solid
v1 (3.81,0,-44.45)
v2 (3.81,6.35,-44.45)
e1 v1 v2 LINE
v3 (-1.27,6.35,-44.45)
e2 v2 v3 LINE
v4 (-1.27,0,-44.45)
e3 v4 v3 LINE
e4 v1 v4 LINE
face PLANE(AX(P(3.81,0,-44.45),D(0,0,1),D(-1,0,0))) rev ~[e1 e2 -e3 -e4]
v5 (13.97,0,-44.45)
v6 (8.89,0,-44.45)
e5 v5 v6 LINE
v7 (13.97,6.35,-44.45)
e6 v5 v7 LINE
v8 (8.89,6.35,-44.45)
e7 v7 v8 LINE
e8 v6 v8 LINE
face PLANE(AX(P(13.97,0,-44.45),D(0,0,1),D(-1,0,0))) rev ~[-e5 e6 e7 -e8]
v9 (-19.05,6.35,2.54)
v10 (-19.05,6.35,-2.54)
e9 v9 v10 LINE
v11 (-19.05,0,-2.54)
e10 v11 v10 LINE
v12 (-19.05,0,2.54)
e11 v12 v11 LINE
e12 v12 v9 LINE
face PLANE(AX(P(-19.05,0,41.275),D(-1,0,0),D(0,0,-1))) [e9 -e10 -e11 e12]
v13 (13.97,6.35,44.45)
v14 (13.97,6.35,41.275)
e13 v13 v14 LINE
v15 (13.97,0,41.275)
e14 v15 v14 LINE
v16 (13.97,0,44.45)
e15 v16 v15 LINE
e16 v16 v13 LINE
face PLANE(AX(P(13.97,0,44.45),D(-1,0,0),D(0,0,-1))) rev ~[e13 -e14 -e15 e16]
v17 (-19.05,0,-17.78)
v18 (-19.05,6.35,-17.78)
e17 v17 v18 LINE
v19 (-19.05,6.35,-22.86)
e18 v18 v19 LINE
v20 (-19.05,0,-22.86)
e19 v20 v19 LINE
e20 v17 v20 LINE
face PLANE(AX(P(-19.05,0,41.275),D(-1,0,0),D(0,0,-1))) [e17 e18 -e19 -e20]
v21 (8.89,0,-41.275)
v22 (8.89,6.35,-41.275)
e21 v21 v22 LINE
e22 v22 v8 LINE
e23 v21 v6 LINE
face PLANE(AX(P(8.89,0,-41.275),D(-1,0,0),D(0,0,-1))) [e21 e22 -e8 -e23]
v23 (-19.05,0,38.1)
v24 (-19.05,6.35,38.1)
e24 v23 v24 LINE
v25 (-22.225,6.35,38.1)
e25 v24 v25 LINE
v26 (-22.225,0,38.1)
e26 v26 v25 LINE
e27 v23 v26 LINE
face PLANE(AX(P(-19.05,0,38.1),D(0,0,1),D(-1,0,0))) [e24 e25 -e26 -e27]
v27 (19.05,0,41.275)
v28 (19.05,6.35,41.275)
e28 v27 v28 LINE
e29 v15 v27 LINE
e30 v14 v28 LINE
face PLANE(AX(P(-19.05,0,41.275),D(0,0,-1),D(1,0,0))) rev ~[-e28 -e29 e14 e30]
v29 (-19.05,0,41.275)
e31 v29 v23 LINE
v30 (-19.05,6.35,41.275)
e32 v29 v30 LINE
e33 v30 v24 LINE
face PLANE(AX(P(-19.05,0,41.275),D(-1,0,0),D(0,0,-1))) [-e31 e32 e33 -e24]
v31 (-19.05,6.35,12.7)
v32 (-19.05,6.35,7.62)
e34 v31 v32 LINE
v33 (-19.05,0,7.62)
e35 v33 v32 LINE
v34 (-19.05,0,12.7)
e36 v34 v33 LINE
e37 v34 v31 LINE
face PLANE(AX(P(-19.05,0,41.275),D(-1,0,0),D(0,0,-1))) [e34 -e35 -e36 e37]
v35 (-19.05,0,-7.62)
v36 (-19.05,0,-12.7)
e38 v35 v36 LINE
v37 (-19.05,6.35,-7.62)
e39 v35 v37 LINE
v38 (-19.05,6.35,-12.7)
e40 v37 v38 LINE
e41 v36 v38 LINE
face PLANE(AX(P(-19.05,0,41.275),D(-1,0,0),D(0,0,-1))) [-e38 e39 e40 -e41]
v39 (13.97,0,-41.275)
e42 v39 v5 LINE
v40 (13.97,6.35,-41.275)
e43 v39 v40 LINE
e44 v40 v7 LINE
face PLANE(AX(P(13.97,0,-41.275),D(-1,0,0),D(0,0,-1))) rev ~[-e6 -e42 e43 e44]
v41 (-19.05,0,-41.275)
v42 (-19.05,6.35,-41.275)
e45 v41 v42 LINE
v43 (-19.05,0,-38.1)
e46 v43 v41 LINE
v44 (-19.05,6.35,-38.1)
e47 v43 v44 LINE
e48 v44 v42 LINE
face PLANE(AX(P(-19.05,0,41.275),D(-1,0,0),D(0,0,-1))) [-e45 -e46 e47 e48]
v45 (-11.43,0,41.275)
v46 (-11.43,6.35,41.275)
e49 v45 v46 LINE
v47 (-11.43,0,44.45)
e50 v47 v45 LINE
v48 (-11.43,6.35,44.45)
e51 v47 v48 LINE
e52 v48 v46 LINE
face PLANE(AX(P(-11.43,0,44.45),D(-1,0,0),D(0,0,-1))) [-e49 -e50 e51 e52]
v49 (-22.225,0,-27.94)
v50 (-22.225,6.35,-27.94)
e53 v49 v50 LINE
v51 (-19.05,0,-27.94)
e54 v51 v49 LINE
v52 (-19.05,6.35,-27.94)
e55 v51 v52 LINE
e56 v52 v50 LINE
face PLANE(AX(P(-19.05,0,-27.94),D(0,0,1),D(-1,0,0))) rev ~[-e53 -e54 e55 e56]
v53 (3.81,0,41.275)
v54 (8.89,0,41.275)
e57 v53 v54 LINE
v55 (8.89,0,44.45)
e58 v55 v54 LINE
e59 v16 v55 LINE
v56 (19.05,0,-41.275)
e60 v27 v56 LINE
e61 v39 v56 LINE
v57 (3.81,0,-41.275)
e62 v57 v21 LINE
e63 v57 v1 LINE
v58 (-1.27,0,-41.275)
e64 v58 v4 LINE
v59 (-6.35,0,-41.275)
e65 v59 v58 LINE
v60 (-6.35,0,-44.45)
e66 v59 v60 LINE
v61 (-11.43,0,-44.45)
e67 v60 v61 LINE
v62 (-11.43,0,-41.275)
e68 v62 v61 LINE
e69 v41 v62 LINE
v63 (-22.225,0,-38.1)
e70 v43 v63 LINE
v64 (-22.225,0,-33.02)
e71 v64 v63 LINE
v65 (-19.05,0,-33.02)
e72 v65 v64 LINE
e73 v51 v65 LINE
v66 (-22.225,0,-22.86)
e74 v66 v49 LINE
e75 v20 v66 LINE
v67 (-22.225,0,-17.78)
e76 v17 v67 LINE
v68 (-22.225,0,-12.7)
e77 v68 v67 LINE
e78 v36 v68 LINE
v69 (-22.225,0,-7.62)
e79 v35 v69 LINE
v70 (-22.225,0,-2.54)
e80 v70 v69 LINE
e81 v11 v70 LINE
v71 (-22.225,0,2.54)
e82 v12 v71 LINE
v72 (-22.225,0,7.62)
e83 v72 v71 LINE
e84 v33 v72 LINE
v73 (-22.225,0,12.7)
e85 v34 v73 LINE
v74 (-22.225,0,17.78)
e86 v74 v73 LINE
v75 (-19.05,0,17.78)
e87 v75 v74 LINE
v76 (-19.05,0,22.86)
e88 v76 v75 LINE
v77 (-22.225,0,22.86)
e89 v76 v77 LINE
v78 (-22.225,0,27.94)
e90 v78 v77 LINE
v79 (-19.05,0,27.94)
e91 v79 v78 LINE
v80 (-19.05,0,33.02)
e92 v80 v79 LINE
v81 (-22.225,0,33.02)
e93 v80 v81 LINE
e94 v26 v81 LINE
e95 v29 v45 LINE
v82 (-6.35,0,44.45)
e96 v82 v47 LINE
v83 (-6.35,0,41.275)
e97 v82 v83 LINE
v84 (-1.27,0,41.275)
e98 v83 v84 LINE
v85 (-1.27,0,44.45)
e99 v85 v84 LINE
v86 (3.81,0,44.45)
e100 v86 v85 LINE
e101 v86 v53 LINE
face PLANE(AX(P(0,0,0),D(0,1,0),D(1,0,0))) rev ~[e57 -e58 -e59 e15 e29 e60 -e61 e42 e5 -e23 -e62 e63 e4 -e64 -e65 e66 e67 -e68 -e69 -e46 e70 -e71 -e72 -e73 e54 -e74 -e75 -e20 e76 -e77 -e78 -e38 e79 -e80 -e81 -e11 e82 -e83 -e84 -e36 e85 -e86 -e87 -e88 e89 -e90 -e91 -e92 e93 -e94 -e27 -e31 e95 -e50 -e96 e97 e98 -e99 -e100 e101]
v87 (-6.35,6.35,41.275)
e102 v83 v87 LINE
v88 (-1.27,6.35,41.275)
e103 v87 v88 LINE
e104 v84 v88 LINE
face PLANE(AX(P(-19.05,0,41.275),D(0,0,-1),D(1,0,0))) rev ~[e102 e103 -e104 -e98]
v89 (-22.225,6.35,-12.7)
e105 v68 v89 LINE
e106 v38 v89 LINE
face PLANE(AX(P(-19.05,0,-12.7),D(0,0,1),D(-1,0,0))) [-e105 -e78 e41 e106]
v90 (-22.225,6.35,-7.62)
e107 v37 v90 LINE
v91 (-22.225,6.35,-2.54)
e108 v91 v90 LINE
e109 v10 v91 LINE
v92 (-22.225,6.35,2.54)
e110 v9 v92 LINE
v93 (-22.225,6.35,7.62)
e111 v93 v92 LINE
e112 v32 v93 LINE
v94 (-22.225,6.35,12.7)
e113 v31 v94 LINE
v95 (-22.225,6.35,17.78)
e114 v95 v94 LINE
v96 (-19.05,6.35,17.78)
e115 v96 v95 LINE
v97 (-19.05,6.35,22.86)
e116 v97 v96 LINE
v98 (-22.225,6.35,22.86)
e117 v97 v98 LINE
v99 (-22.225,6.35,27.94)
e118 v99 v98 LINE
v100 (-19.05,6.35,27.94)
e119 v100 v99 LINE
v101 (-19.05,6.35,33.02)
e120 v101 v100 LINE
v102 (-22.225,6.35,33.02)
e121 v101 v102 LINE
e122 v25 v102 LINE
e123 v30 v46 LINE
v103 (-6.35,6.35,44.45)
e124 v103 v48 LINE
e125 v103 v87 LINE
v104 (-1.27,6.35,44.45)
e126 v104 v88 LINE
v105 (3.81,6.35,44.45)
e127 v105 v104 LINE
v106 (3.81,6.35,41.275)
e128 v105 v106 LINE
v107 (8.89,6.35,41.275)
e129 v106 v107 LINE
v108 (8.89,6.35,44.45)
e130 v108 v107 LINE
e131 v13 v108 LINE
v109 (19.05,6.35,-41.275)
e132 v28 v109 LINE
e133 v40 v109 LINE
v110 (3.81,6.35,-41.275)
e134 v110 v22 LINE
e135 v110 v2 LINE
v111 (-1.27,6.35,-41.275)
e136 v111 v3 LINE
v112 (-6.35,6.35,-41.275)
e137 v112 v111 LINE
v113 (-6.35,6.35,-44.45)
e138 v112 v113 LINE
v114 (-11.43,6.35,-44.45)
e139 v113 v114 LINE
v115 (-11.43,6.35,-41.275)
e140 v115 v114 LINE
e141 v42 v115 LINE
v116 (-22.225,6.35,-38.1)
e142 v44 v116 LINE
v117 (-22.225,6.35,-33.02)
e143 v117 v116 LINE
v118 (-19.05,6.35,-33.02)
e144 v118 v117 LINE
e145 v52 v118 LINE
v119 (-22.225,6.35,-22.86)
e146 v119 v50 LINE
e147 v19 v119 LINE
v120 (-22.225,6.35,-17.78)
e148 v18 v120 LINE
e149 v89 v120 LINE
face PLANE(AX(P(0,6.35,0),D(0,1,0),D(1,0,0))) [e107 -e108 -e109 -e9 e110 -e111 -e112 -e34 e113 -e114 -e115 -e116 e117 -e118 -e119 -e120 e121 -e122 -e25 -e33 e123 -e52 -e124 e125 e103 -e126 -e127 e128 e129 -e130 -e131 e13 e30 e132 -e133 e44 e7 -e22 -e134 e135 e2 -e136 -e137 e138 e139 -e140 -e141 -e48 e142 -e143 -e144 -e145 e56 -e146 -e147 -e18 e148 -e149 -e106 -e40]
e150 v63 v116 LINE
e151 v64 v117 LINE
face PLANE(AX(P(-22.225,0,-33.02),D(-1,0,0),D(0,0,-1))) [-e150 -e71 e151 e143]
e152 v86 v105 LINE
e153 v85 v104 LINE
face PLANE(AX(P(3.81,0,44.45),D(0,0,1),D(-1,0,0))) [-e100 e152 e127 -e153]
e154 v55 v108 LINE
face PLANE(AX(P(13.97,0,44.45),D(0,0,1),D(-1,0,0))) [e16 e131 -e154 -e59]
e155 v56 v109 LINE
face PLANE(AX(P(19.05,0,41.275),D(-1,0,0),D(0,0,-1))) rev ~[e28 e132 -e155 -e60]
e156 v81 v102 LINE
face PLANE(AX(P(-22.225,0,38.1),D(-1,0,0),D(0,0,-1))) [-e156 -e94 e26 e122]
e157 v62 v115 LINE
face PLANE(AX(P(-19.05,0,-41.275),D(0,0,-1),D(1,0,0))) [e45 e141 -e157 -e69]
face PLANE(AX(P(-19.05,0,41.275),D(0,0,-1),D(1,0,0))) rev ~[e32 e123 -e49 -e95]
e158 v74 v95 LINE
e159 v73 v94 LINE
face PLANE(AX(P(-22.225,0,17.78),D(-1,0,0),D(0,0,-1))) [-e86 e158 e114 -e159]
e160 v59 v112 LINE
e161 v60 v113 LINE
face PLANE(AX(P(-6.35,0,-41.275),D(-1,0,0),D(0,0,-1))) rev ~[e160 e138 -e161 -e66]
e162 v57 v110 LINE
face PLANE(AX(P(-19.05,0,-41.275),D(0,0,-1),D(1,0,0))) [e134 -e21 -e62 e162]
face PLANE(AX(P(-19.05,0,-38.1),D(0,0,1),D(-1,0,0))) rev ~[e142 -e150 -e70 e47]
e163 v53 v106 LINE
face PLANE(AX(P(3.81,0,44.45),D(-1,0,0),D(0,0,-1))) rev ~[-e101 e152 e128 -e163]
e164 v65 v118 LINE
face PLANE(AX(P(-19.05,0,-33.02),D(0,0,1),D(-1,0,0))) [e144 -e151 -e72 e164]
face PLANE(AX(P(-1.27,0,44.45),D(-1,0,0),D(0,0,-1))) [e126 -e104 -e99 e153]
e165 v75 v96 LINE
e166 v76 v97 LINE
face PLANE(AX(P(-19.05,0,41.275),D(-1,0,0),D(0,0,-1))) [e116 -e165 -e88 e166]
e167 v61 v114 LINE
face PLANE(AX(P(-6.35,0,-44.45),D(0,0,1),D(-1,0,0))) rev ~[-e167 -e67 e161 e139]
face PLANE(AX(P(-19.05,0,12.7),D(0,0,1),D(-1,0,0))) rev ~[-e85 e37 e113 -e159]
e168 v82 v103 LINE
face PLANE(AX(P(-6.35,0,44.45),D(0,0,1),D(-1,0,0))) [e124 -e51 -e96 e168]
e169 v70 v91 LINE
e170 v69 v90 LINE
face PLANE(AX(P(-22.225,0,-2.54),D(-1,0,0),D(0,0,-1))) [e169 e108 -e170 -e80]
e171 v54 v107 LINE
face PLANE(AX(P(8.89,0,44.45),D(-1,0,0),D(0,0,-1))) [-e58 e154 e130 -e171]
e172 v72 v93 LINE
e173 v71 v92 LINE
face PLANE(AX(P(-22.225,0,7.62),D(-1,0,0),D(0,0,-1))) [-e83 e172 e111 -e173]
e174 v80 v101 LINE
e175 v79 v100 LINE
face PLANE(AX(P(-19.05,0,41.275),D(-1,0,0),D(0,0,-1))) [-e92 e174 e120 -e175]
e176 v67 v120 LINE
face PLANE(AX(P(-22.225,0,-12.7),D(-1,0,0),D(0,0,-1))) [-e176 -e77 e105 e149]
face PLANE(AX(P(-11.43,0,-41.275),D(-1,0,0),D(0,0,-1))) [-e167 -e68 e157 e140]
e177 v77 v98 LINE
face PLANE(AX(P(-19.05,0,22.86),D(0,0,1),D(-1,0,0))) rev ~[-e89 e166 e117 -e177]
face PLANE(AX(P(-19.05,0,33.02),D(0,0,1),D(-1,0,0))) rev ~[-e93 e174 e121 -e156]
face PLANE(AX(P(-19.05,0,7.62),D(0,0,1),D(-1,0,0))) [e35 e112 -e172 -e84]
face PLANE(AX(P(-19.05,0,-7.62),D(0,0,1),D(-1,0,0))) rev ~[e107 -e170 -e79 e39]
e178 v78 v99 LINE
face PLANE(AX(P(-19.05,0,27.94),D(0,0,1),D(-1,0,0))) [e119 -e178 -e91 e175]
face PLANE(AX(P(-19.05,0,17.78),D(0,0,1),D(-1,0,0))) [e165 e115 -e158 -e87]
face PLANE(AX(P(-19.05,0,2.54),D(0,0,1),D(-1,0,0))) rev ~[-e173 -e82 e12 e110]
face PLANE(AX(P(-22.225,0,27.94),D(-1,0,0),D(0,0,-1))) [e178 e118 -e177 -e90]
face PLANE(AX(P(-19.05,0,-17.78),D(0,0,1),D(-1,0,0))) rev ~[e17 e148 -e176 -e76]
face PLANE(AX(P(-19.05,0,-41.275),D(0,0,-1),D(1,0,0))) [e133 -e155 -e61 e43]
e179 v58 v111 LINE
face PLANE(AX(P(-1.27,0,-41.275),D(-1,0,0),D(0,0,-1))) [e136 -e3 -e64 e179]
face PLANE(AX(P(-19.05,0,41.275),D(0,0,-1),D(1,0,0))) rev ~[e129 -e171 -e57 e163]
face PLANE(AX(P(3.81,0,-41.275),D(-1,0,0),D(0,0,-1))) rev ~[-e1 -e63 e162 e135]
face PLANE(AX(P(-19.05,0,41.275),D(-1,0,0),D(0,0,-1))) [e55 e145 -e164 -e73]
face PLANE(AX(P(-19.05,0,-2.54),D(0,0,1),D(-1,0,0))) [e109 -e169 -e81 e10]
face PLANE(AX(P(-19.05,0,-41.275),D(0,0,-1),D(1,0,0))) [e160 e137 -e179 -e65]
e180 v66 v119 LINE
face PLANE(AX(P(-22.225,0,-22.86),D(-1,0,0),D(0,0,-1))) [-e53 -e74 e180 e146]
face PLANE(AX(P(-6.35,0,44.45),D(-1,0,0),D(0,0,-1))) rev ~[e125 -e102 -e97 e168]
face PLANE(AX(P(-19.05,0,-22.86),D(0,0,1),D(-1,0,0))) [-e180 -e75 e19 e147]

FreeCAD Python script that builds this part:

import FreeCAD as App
import Part
import Sketcher

V = App.Vector
Q = App.Units.Quantity


def add_polygon(sketch, points):
    """Adds a closed chain of lines whose ends are joined by coincident constraints."""
    first, n = sketch.GeometryCount, len(points)
    for a, b in zip(points, points[1:] + points[:1]):
        sketch.addGeometry(Part.LineSegment(App.Vector(*a, 0), App.Vector(*b, 0)), False)
    for i in range(n):
        sketch.addConstraint(Sketcher.Constraint("Coincident", first + i, 2, first + (i + 1) % n, 1))

doc = App.newDocument("Part")
body = doc.addObject("PartDesign::Body", "Body")

sketch1 = doc.addObject("Sketcher::SketchObject", "Sketch")
body.addObject(sketch1)
sketch1.AttachmentSupport = (doc.XZ_Plane, [""])
sketch1.MapMode = "FlatFace"
add_polygon(sketch1, [(-19, -41), (-19, 41), (19, 41), (19, -41)])
sketch1.addConstraint([
    Sketcher.Constraint("Vertical", 0),
    Sketcher.Constraint("Horizontal", 1),
    Sketcher.Constraint("Vertical", 2),
    Sketcher.Constraint("Horizontal", 3),
    Sketcher.Constraint("Symmetric", 0, 2, 2, 2, -1, 1),
    Sketcher.Constraint("DistanceX", 1, 1, 1, 2, Q("1.5 in")),
    Sketcher.Constraint("DistanceY", 0, 1, 0, 2, Q("3.25 in")),
])
pad1 = doc.addObject("PartDesign::Pad", "Pad")
body.addObject(pad1)
pad1.Profile = sketch1
pad1.Length = Q("0.25 in")
pad1.Reversed = True

sketch2 = doc.addObject("Sketcher::SketchObject", "Sketch001")
body.addObject(sketch2)
sketch2.AttachmentSupport = (doc.XZ_Plane, [""])
sketch2.MapMode = "FlatFace"
add_polygon(sketch2, [(14, -44.5), (14, -41.3), (8.9, -41.3), (8.9, -44.5)])
add_polygon(sketch2, [(-19.1, -38.1), (-19.1, -33), (-22.2, -33), (-22.2, -38.1)])
add_polygon(sketch2, [(3.8, -44.5), (3.8, -41.3), (-1.3, -41.3), (-1.3, -44.5)])
add_polygon(sketch2, [(-6.3, -44.5), (-6.3, -41.3), (-11.4, -41.3), (-11.4, -44.5)])
add_polygon(sketch2, [(-19.1, -27.9), (-19.1, -22.9), (-22.2, -22.9), (-22.2, -27.9)])
add_polygon(sketch2, [(-19.1, -17.8), (-19.1, -12.7), (-22.2, -12.7), (-22.2, -17.8)])
add_polygon(sketch2, [(-19.1, -7.6), (-19.1, -2.5), (-22.2, -2.5), (-22.2, -7.6)])
add_polygon(sketch2, [(-19.1, 2.5), (-19.1, 7.6), (-22.2, 7.6), (-22.2, 2.5)])
add_polygon(sketch2, [(-19.1, 12.7), (-19.1, 17.8), (-22.2, 17.8), (-22.2, 12.7)])
add_polygon(sketch2, [(-19.1, 22.9), (-19.1, 27.9), (-22.2, 27.9), (-22.2, 22.9)])
add_polygon(sketch2, [(-19.1, 33), (-19.1, 38.1), (-22.2, 38.1), (-22.2, 33)])
add_polygon(sketch2, [(-6.3, 41.3), (-6.3, 44.5), (-11.4, 44.5), (-11.4, 41.3)])
add_polygon(sketch2, [(3.8, 41.3), (3.8, 44.5), (-1.3, 44.5), (-1.3, 41.3)])
add_polygon(sketch2, [(14, 41.3), (14, 44.5), (8.9, 44.5), (8.9, 41.3)])
sketch2.addConstraint([
    Sketcher.Constraint("Vertical", 0),
    Sketcher.Constraint("Horizontal", 1),
    Sketcher.Constraint("Vertical", 2),
    Sketcher.Constraint("Horizontal", 3),
    Sketcher.Constraint("Vertical", 4),
    Sketcher.Constraint("Horizontal", 5),
    Sketcher.Constraint("Vertical", 6),
    Sketcher.Constraint("Horizontal", 7),
    Sketcher.Constraint("Vertical", 8),
    Sketcher.Constraint("Horizontal", 9),
    Sketcher.Constraint("Vertical", 10),
    Sketcher.Constraint("Horizontal", 11),
    Sketcher.Constraint("Vertical", 12),
    Sketcher.Constraint("Horizontal", 13),
    Sketcher.Constraint("Vertical", 14),
    Sketcher.Constraint("Horizontal", 15),
    Sketcher.Constraint("Vertical", 16),
    Sketcher.Constraint("Horizontal", 17),
    Sketcher.Constraint("Vertical", 18),
    Sketcher.Constraint("Horizontal", 19),
    Sketcher.Constraint("Vertical", 20),
    Sketcher.Constraint("Horizontal", 21),
    Sketcher.Constraint("Vertical", 22),
    Sketcher.Constraint("Horizontal", 23),
    Sketcher.Constraint("Vertical", 24),
    Sketcher.Constraint("Horizontal", 25),
    Sketcher.Constraint("Vertical", 26),
    Sketcher.Constraint("Horizontal", 27),
    Sketcher.Constraint("Vertical", 28),
    Sketcher.Constraint("Horizontal", 29),
    Sketcher.Constraint("Vertical", 30),
    Sketcher.Constraint("Horizontal", 31),
    Sketcher.Constraint("Vertical", 32),
    Sketcher.Constraint("Horizontal", 33),
    Sketcher.Constraint("Vertical", 34),
    Sketcher.Constraint("Horizontal", 35),
    Sketcher.Constraint("Vertical", 36),
    Sketcher.Constraint("Horizontal", 37),
    Sketcher.Constraint("Vertical", 38),
    Sketcher.Constraint("Horizontal", 39),
    Sketcher.Constraint("Vertical", 40),
    Sketcher.Constraint("Horizontal", 41),
    Sketcher.Constraint("Vertical", 42),
    Sketcher.Constraint("Horizontal", 43),
    Sketcher.Constraint("Vertical", 44),
    Sketcher.Constraint("Horizontal", 45),
    Sketcher.Constraint("Vertical", 46),
    Sketcher.Constraint("Horizontal", 47),
    Sketcher.Constraint("Vertical", 48),
    Sketcher.Constraint("Horizontal", 49),
    Sketcher.Constraint("Vertical", 50),
    Sketcher.Constraint("Horizontal", 51),
    Sketcher.Constraint("Vertical", 52),
    Sketcher.Constraint("Horizontal", 53),
    Sketcher.Constraint("Vertical", 54),
    Sketcher.Constraint("Horizontal", 55),
    Sketcher.Constraint("Symmetric", 27, 2, 28, 2, -1),
    Sketcher.Constraint("Symmetric", 25, 2, 30, 2, -1),
    Sketcher.Constraint("Symmetric", 23, 2, 32, 2, -1),
    Sketcher.Constraint("Symmetric", 21, 2, 34, 2, -1),
    Sketcher.Constraint("Symmetric", 19, 2, 36, 2, -1),
    Sketcher.Constraint("Symmetric", 17, 2, 38, 2, -1),
    Sketcher.Constraint("Symmetric", 7, 2, 40, 2, -1),
    Sketcher.Constraint("Symmetric", 5, 2, 42, 2, -1),
    Sketcher.Constraint("Symmetric", 15, 2, 44, 2, -1),
    Sketcher.Constraint("Symmetric", 13, 2, 46, 2, -1),
    Sketcher.Constraint("Symmetric", 11, 2, 48, 2, -1),
    Sketcher.Constraint("Symmetric", 9, 2, 50, 2, -1),
    Sketcher.Constraint("Symmetric", 3, 2, 52, 2, -1),
    Sketcher.Constraint("Symmetric", 1, 2, 54, 2, -1),
    Sketcher.Constraint("Horizontal", 1, 2, 8, 2),
    Sketcher.Constraint("Horizontal", 3, 2, 10, 2),
    Sketcher.Constraint("Horizontal", 9, 2, 12, 2),
    Sketcher.Constraint("Horizontal", 11, 2, 14, 2),
    Sketcher.Constraint("Vertical", 7, 2, 16, 2),
    Sketcher.Constraint("Vertical", 6, 2, 17, 2),
    Sketcher.Constraint("Vertical", 19, 2, 20, 2),
    Sketcher.Constraint("Vertical", 18, 2, 21, 2),
    Sketcher.Constraint("Vertical", 23, 2, 24, 2),
    Sketcher.Constraint("Vertical", 22, 2, 25, 2),
    Sketcher.Constraint("Equal", 3, 9),
    Sketcher.Constraint("Equal", 11, 13),
    Sketcher.Constraint("Equal", 43, 0),
    Sketcher.Constraint("Equal", 55, 4),
    Sketcher.Constraint("Equal", 6, 16),
    Sketcher.Constraint("Equal", 18, 20),
    Sketcher.Constraint("Equal", 22, 24),
    Sketcher.Constraint("DistanceX", 1, 2, 1, 1, Q("0.2 in")),
    Sketcher.Constraint("DistanceY", 4, 2, -1, 1, Q("1.3 in")),
    Sketcher.Constraint("DistanceY", 16, 2, -1, 1, Q("0.9 in")),
    Sketcher.Constraint("DistanceY", 20, 2, -1, 1, Q("0.5 in")),
    Sketcher.Constraint("DistanceY", 24, 2, -1, 1, Q("0.1 in")),
    Sketcher.Constraint("DistanceX", 4, 2, 1, 2, Q("1.1 in")),
    Sketcher.Constraint("DistanceX", 8, 2, 1, 2, Q("0.2 in")),
    Sketcher.Constraint("DistanceX", 12, 2, 9, 2, Q("0.2 in")),
    Sketcher.Constraint("DistanceX", 5, 2, 5, 1, Q("0.125 in")),
    Sketcher.Constraint("DistanceX", -1, 1, 0, 2, Q("0.55 in")),
    Sketcher.Constraint("DistanceY", 2, 2, -1, 1, Q("1.75 in")),
])
pad2 = doc.addObject("PartDesign::Pad", "Pad001")
body.addObject(pad2)
pad2.Profile = sketch2
pad2.Length = Q("0.25 in")
pad2.Reversed = True

doc.recompute()
